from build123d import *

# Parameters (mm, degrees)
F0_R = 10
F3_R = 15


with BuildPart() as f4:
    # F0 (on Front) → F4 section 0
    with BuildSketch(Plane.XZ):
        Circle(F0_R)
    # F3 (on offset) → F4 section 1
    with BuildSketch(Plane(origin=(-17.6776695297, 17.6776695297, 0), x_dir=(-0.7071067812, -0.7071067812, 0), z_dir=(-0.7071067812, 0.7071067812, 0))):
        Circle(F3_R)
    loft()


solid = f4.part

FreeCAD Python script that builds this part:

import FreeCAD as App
import Part
import Sketcher
from FreeCAD import Vector
Q = App.Units.Quantity

doc = App.newDocument("Part")
params = doc.addObject("Spreadsheet::Sheet", "Params")
for row, (alias, value) in enumerate([
    ("sketch1_diameter", "20 mm"),
    ("sketch2_diameter", "30 mm"),
], start=1):
    params.set(f"A{row}", alias)
    params.set(f"B{row}", "=" + value)
    params.setAlias(f"B{row}", alias)

body = doc.addObject("PartDesign::Body", "Body")

# Sketch on XZ plane
sketch1 = body.newObject("Sketcher::SketchObject", "Sketch")
sketch1.AttachmentSupport = (doc.getObject("XZ_Plane"), [""])
sketch1.MapMode = "FlatFace"
sketch1.addGeometry(Part.Circle(Vector(0, 0, 0), Vector(0, 0, 1), 10), False)
sketch1.addConstraint(Sketcher.Constraint("Coincident", 0, 3, -1, 1))
sketch1.addConstraint(Sketcher.Constraint("Diameter", 0, Q("20 mm")))
sketch1.setExpression("Constraints[1]", "Params.sketch1_diameter")

# Sketch on an angled plane
sketch2 = body.newObject("Sketcher::SketchObject", "Sketch001")
sketch2.Placement = App.Placement(Vector(-17.67767, 17.67767, 0), App.Rotation(Vector(-0.707106781, -0.707106781, 0), Vector(0, 0, 0.999999999), Vector(-0.707106781, 0.707106781, 0), "ZXY"))
sketch2.addGeometry(Part.Circle(Vector(0, 0, 0), Vector(0, 0, 1), 15), False)
sketch2.addConstraint(Sketcher.Constraint("Coincident", 0, 3, -1, 1))
sketch2.addConstraint(Sketcher.Constraint("Diameter", 0, Q("30 mm")))
sketch2.setExpression("Constraints[1]", "Params.sketch2_diameter")

additiveloft = body.newObject("PartDesign::AdditiveLoft", "AdditiveLoft")
additiveloft.Profile = sketch1
additiveloft.Sections = [sketch2]

doc.recompute()
